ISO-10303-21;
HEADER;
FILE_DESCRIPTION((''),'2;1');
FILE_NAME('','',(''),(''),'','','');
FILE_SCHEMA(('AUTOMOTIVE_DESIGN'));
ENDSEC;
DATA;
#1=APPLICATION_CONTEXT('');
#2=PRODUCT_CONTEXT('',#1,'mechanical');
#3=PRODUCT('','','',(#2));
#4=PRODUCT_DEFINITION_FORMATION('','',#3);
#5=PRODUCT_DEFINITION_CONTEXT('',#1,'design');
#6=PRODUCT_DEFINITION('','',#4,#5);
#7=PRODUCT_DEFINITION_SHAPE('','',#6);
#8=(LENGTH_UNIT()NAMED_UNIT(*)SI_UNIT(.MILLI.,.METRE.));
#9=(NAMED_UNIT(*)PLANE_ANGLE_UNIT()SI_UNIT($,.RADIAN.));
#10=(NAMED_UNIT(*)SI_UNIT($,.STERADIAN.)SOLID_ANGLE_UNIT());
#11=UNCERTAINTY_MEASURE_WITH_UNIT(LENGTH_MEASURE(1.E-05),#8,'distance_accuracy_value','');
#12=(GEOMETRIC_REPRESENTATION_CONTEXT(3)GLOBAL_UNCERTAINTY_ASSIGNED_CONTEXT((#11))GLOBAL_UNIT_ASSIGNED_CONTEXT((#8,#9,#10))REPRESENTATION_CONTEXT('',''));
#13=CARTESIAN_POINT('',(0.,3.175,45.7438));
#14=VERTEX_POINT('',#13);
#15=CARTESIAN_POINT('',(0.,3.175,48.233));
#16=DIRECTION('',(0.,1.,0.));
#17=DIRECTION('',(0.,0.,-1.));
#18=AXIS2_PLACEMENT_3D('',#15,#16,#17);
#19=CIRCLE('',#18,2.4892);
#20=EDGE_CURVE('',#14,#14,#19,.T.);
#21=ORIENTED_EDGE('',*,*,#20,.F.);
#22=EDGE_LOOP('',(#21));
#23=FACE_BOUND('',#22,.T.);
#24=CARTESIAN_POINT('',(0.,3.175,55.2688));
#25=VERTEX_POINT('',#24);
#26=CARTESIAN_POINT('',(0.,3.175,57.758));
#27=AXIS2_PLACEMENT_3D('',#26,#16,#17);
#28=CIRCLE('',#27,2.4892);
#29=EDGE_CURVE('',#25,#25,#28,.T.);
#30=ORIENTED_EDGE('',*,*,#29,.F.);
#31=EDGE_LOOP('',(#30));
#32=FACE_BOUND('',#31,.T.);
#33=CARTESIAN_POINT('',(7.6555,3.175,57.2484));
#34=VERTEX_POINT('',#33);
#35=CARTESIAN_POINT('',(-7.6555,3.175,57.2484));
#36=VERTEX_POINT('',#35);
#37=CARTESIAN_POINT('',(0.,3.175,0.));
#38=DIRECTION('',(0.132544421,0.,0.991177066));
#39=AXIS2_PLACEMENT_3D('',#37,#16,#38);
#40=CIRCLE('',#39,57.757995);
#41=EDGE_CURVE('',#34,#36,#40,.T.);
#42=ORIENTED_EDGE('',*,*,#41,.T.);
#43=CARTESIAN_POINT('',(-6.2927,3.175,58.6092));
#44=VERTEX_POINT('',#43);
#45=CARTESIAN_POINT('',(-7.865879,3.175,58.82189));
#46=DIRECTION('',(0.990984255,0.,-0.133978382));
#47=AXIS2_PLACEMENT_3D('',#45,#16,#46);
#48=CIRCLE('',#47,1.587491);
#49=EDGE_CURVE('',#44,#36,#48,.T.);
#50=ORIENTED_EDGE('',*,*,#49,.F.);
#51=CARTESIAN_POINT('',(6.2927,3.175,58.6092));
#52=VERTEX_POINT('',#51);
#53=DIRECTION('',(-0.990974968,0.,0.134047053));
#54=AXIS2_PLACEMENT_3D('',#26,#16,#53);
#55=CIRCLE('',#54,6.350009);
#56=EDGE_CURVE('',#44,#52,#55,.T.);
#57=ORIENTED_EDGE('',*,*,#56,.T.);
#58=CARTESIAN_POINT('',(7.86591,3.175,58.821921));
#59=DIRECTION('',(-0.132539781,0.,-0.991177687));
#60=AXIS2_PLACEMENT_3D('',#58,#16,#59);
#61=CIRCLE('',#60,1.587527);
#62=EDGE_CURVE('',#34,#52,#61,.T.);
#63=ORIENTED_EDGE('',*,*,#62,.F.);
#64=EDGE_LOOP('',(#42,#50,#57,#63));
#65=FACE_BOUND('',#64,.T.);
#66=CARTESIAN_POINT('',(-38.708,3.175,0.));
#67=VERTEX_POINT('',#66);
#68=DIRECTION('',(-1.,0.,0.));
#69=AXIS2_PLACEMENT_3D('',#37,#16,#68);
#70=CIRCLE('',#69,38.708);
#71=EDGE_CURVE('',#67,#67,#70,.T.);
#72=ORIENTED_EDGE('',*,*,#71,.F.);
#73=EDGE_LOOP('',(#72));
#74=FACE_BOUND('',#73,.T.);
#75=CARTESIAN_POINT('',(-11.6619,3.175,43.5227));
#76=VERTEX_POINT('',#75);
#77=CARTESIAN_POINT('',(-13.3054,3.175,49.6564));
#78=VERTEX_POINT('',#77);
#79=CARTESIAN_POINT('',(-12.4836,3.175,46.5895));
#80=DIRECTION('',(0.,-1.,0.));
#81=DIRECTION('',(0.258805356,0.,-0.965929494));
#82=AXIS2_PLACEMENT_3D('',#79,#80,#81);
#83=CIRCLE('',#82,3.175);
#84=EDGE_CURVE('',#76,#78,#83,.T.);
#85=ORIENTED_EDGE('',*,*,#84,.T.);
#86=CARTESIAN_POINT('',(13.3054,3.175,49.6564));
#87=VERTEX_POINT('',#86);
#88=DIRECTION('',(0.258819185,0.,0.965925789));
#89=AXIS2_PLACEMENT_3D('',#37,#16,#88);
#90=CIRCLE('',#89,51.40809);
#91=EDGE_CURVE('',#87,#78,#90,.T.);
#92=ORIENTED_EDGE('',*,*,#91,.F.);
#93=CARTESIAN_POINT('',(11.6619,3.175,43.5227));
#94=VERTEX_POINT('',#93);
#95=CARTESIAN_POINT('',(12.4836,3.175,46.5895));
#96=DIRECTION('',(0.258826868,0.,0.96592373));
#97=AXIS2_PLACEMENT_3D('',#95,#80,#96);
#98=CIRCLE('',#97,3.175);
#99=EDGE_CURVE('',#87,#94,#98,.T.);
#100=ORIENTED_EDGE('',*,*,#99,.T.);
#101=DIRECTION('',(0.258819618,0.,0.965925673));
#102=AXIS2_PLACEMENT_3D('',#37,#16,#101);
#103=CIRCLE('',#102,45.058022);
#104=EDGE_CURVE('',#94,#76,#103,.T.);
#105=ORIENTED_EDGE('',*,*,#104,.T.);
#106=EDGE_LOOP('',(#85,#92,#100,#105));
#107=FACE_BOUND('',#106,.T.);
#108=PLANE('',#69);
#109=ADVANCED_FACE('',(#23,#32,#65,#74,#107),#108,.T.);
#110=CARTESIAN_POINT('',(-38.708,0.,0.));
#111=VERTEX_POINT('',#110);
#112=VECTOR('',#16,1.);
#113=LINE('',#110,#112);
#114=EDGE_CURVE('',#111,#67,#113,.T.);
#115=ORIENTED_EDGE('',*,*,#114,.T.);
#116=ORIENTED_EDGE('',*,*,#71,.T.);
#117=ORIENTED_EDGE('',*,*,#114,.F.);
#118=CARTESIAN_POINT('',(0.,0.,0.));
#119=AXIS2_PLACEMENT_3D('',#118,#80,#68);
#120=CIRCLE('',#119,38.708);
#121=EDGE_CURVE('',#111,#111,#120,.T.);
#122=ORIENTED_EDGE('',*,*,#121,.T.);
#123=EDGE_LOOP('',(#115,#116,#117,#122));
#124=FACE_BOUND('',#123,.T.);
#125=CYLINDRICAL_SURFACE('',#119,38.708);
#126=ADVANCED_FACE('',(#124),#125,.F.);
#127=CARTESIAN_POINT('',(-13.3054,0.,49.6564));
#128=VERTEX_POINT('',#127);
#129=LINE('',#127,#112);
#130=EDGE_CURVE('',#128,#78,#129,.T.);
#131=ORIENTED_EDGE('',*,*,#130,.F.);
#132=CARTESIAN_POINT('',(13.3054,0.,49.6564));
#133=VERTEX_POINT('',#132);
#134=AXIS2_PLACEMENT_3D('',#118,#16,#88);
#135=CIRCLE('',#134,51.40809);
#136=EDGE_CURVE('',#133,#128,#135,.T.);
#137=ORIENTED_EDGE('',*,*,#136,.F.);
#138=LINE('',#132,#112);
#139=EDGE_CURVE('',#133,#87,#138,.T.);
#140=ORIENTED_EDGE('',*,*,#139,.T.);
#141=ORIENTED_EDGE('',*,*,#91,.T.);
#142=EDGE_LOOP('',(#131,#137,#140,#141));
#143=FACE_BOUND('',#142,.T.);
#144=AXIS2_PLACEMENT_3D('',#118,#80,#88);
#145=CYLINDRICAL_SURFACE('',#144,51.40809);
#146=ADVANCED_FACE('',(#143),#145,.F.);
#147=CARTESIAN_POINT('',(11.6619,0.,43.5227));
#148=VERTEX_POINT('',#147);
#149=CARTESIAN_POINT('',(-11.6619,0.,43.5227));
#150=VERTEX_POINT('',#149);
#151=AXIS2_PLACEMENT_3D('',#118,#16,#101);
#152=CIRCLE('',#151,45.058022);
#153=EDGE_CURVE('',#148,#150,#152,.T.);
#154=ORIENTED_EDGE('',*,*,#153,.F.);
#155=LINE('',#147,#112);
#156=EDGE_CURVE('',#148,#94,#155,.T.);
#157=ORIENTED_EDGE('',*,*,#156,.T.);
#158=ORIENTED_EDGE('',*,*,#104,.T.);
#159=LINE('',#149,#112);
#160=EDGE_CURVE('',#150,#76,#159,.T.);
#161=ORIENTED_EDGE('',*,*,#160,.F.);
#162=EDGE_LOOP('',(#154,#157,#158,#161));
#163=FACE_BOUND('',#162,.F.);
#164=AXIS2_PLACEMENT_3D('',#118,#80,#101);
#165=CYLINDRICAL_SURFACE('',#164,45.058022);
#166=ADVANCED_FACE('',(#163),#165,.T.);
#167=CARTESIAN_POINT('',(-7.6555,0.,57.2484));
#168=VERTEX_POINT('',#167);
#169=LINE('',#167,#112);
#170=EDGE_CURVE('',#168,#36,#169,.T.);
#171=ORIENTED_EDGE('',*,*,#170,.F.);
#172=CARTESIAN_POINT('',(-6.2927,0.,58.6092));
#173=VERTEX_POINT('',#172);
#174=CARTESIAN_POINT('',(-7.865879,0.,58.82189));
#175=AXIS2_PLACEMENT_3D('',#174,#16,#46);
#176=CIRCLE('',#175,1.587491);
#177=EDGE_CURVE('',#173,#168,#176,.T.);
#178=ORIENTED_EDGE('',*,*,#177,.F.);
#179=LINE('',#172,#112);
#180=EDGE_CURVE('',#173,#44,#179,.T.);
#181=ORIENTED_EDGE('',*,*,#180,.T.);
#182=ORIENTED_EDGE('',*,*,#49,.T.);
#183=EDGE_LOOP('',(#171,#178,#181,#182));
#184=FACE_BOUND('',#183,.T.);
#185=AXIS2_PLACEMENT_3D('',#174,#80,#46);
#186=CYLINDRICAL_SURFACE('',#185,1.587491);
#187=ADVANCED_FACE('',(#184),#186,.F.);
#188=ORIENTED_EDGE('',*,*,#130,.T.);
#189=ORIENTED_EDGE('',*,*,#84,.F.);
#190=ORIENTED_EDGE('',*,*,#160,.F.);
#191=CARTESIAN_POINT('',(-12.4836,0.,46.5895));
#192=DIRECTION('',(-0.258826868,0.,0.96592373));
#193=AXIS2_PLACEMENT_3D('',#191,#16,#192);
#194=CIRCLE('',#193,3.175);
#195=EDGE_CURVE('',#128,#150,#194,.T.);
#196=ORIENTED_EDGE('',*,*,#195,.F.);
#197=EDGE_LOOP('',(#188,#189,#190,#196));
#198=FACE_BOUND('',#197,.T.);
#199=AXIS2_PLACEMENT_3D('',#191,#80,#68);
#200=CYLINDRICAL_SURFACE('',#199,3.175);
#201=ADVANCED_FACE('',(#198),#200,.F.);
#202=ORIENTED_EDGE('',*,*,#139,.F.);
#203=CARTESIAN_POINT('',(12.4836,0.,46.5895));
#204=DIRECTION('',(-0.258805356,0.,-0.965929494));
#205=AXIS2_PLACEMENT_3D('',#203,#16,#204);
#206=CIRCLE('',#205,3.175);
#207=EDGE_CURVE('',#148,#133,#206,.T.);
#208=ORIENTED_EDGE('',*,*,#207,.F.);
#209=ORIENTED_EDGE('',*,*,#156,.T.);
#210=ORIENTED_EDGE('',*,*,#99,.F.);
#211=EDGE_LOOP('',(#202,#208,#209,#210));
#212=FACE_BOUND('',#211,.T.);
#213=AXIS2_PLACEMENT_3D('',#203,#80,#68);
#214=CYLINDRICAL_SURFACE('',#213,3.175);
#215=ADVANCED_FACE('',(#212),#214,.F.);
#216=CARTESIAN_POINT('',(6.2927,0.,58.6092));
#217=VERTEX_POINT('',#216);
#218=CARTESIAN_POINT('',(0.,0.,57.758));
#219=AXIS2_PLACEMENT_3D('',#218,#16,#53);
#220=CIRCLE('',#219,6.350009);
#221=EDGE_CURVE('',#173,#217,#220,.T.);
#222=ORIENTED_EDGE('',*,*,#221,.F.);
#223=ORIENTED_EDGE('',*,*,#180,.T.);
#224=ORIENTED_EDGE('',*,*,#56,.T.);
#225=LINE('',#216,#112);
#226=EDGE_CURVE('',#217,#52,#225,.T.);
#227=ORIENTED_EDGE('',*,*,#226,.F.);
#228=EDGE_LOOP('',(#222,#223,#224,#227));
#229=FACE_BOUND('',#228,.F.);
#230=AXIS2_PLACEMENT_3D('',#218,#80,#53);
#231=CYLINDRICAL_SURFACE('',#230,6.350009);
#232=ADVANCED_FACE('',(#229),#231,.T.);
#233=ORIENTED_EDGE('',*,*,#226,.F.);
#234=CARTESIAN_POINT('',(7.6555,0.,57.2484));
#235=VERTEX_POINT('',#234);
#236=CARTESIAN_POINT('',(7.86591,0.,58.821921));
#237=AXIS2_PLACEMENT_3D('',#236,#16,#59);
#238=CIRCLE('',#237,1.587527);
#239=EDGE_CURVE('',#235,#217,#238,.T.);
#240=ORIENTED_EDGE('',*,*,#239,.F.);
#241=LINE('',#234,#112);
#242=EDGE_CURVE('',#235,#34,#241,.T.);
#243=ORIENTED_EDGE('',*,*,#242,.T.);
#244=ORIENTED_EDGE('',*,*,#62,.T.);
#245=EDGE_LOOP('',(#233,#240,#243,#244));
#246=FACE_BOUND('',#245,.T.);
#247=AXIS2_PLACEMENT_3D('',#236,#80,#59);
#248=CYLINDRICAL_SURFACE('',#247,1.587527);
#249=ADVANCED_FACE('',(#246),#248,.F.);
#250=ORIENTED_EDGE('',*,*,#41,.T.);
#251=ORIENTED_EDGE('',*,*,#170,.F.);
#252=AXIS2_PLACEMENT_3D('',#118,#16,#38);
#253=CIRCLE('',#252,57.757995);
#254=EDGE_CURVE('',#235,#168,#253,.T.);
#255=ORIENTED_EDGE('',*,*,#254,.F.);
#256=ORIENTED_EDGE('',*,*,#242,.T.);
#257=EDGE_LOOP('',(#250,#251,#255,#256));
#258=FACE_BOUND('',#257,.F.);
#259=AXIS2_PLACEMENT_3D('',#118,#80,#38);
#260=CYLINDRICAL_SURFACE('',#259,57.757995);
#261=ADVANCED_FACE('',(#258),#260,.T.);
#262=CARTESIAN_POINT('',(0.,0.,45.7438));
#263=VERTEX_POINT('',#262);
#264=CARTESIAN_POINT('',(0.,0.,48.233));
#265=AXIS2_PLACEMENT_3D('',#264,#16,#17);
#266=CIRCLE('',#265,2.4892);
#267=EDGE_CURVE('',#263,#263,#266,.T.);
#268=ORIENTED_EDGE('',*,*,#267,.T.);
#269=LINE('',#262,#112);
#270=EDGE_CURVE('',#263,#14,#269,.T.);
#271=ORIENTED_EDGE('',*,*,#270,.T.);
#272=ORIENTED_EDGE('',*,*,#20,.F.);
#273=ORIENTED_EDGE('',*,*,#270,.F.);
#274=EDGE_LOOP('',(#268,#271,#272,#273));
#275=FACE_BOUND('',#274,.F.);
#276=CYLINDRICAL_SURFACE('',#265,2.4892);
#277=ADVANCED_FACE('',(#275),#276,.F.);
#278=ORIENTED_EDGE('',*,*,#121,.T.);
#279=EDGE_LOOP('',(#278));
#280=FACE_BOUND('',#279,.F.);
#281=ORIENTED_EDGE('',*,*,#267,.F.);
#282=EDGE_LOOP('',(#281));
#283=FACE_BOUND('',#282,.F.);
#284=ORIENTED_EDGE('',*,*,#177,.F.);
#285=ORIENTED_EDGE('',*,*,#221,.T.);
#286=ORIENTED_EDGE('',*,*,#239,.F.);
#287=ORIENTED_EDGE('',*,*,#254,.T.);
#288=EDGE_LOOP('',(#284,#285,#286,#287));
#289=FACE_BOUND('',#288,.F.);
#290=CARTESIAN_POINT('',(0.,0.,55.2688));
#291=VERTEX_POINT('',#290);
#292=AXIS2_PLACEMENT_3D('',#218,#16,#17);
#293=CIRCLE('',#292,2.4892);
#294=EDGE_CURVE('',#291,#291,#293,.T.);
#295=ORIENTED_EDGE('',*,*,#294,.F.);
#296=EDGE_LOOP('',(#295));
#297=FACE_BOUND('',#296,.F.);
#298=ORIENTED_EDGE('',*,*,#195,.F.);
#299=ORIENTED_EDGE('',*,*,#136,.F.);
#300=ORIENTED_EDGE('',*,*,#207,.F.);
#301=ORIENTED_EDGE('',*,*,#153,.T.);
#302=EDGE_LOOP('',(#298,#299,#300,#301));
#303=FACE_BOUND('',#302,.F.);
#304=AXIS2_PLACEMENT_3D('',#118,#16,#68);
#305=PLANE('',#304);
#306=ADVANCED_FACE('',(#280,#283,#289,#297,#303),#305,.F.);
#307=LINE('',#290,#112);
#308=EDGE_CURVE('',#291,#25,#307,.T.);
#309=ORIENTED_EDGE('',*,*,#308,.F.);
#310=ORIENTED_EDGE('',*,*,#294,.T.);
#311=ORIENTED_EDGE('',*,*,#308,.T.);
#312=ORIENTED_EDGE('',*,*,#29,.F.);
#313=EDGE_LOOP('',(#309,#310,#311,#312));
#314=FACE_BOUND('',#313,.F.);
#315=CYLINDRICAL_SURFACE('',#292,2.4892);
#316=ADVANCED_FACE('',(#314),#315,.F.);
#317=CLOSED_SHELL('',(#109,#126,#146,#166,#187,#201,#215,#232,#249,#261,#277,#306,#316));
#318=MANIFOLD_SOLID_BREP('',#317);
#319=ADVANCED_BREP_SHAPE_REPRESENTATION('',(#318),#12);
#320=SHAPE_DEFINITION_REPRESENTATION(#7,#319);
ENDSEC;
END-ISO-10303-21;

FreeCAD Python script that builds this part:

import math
import FreeCAD as App
import Part
import Sketcher
Q = App.Units.Quantity

doc = App.newDocument("Part")
body = doc.addObject("PartDesign::Body", "Body")

# Sketch on XZ plane
sketch1 = body.newObject("Sketcher::SketchObject", "Sketch")
sketch1.AttachmentSupport = (doc.getObject("XZ_Plane"), [""])
sketch1.MapMode = "FlatFace"
sketch1.addGeometry([
    Part.ArcOfCircle(Part.Circle(App.Vector(-7.9, 58.8, 0), App.Vector(0, 0, 1), 1.6), math.radians(-82), math.radians(-8)),  # 0
    Part.ArcOfCircle(Part.Circle(App.Vector(0, 57.8, 0), App.Vector(0, 0, 1), 6.4), math.radians(8), math.radians(172)),  # 1
    Part.ArcOfCircle(Part.Circle(App.Vector(7.9, 58.8, 0), App.Vector(0, 0, 1), 1.6), math.radians(-172), math.radians(-98)),  # 2
    Part.ArcOfCircle(Part.Circle(App.Vector(0, 0, 0), App.Vector(0, 0, 1), 57.8), math.radians(98), math.radians(442)),  # 3
    Part.Circle(App.Vector(0, 0, 0), App.Vector(0, 0, 1), 38.7),  # 4
    Part.ArcOfCircle(Part.Circle(App.Vector(0, 0, 0), App.Vector(0, 0, 1), 45.1), math.radians(105), math.radians(435)),  # 5
    Part.ArcOfCircle(Part.Circle(App.Vector(-12.5, 46.6, 0), App.Vector(0, 0, 1), 3.2), math.radians(-75), math.radians(105)),  # 6
    Part.ArcOfCircle(Part.Circle(App.Vector(0, 0, 0), App.Vector(0, 0, 1), 51.4), math.radians(105), math.radians(435)),  # 7
    Part.ArcOfCircle(Part.Circle(App.Vector(12.5, 46.6, 0), App.Vector(0, 0, 1), 3.2), math.radians(75), math.radians(255)),  # 8
], False)
sketch1.addConstraint([
    Sketcher.Constraint("Tangent", 0, 2, 1, 2),
    Sketcher.Constraint("Tangent", 1, 1, 2, 1),
    Sketcher.Constraint("Tangent", 2, 2, 3, 2),
    Sketcher.Constraint("Tangent", 3, 1, 0, 1),
    Sketcher.Constraint("Tangent", 5, 1, 6, 1),
    Sketcher.Constraint("Tangent", 6, 2, 7, 1),
    Sketcher.Constraint("Tangent", 7, 2, 8, 1),
    Sketcher.Constraint("Tangent", 8, 2, 5, 2),
    Sketcher.Constraint("Coincident", 3, 3, -1, 1),
    Sketcher.Constraint("Coincident", 4, 3, -1, 1),
    Sketcher.Constraint("Coincident", 5, 3, -1, 1),
    Sketcher.Constraint("Coincident", 7, 3, -1, 1),
    Sketcher.Constraint("Equal", 0, 2),
    Sketcher.Constraint("PointOnObject", 1, 3, -2),
    Sketcher.Constraint("Horizontal", 6, 3, 8, 3),
    Sketcher.Constraint("Radius", 1, Q("0.25 in")),
    Sketcher.Constraint("Radius", 0, Q("0.0625 in")),
    Sketcher.Constraint("Radius", 6, Q("0.125 in")),
    Sketcher.Constraint("Radius", 3, Q("57.758 mm")),
    Sketcher.Constraint("Diameter", 4, Q("77.416 mm")),
    Sketcher.Constraint("DistanceY", -1, 1, 1, 3, Q("57.758 mm")),
    Sketcher.Constraint("Radius", 5, Q("45.058 mm")),
    Sketcher.Constraint("DistanceY", -1, 1, 5, 1, Q("1.7135 in")),
])
pad1 = body.newObject("PartDesign::Pad", "Pad")
pad1.Profile = sketch1
pad1.Length = Q("0.125 in")
pad1.Reversed = True

# Sketch on XZ plane
sketch2 = body.newObject("Sketcher::SketchObject", "Sketch001")
sketch2.AttachmentSupport = (doc.getObject("XZ_Plane"), [""])
sketch2.MapMode = "FlatFace"
sketch2.addGeometry([
    Part.Circle(App.Vector(0, 48.2, 0), App.Vector(0, 0, 1), 2.5),
    Part.Circle(App.Vector(0, 57.8, 0), App.Vector(0, 0, 1), 2.5),
], False)
sketch2.addConstraint([
    Sketcher.Constraint("Equal", 0, 1),
    Sketcher.Constraint("PointOnObject", 0, 3, -2),
    Sketcher.Constraint("PointOnObject", 1, 3, -2),
    Sketcher.Constraint("Diameter", 0, Q("0.196 in")),
    Sketcher.Constraint("DistanceY", 0, 3, 1, 3, Q("0.375 in")),
    Sketcher.Constraint("DistanceY", -1, 1, 0, 3, Q("48.233 mm")),
])
doc.recompute()
hole = body.newObject("PartDesign::Hole", "Hole")
hole.Profile = sketch2
hole.ThreadType = "None"
hole.Diameter = Q("0.196 in")
hole.DepthType = "ThroughAll"

doc.recompute()
